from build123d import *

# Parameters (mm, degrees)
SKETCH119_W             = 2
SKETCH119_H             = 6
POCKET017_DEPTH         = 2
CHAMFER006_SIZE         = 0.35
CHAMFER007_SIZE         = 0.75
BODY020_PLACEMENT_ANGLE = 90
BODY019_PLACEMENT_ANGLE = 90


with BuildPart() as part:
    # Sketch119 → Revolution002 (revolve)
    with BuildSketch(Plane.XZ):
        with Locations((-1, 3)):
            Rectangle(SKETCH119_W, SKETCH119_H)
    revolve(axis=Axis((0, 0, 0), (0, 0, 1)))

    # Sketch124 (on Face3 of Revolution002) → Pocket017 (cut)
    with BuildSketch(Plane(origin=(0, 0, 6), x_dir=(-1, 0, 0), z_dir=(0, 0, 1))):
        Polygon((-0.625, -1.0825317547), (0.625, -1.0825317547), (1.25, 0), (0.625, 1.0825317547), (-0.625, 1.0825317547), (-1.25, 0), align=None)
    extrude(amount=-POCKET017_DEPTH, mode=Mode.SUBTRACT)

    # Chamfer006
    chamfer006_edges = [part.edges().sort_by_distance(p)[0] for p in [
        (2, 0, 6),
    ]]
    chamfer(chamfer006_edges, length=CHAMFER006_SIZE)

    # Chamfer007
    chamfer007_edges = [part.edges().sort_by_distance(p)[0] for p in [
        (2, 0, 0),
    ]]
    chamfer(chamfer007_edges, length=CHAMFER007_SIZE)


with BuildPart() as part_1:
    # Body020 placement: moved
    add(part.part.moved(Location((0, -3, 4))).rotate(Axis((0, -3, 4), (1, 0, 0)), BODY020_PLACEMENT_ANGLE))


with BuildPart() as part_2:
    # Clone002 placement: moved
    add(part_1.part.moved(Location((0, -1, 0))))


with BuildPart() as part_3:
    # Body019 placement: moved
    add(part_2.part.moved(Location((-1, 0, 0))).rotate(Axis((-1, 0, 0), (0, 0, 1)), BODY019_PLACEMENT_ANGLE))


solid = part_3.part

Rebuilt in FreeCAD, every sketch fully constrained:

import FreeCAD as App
import Part
import Sketcher

V = App.Vector
Q = App.Units.Quantity


def edges_at(feature, points):
    """Names of the edges that pass closest to the given points."""
    edges = feature.Shape.Edges
    near = lambda p: min(range(len(edges)), key=lambda i: edges[i].distToShape(Part.Vertex(*p))[0])
    return sorted({f"Edge{near(p) + 1}" for p in points})


def add_polygon(sketch, points):
    """Adds a closed chain of lines whose ends are joined by coincident constraints."""
    first, n = sketch.GeometryCount, len(points)
    for a, b in zip(points, points[1:] + points[:1]):
        sketch.addGeometry(Part.LineSegment(App.Vector(*a, 0), App.Vector(*b, 0)), False)
    for i in range(n):
        sketch.addConstraint(Sketcher.Constraint("Coincident", first + i, 2, first + (i + 1) % n, 1))

doc = App.newDocument("Part")
body = doc.addObject("PartDesign::Body", "Body")

# Sketch on XZ plane
sketch1 = body.newObject("Sketcher::SketchObject", "Sketch")
sketch1.AttachmentSupport = (doc.getObject("XZ_Plane"), [""])
sketch1.MapMode = "FlatFace"
add_polygon(sketch1, [(-2, 6), (-2, 0), (0, 0), (0, 6)])  # lines 0-3
sketch1.addConstraint(Sketcher.Constraint("Vertical", 0))
sketch1.addConstraint(Sketcher.Constraint("Horizontal", 1))
sketch1.addConstraint(Sketcher.Constraint("Vertical", 2))
sketch1.addConstraint(Sketcher.Constraint("Horizontal", 3))
sketch1.addConstraint(Sketcher.Constraint("Coincident", 1, 2, -1, 1))
sketch1.addConstraint(Sketcher.Constraint("DistanceX", 1, 1, 1, 2, 2.0))
sketch1.addConstraint(Sketcher.Constraint("DistanceY", 0, 2, 0, 1, 6.0))
revolution = body.newObject("PartDesign::Revolution", "Revolution")
revolution.Profile = sketch1
revolution.ReferenceAxis = (sketch1, ["V_Axis"])
revolution.Angle = 360

# Sketch on XY plane
sketch2 = body.newObject("Sketcher::SketchObject", "Sketch001")
sketch2.AttachmentSupport = (doc.getObject("XY_Plane"), [""])
sketch2.MapMode = "FlatFace"
sketch2.AttachmentOffset = App.Placement(V(0, 0, 6), App.Rotation())
add_polygon(sketch2, [(0.6, 1.1), (-0.6, 1.1), (-1.2, 0), (-0.6, -1.1), (0.6, -1.1), (1.2, 0)])  # lines 0-5
sketch2.addConstraint(Sketcher.Constraint("Horizontal", 0))
sketch2.addConstraint(Sketcher.Constraint("Horizontal", 3))
sketch2.addConstraint(Sketcher.Constraint("Symmetric", 0, 2, 3, 2, -1, 1))
sketch2.addConstraint(Sketcher.Constraint("Symmetric", 1, 2, 4, 2, -1, 1))
sketch2.addConstraint(Sketcher.Constraint("PointOnObject", 1, 2, -1))
sketch2.addConstraint(Sketcher.Constraint("Parallel", 2, 5))
sketch2.addConstraint(Sketcher.Constraint("Vertical", 0, 2, 2, 2))
sketch2.addConstraint(Sketcher.Constraint("Angle", 1, Q("-120 deg")))
sketch2.addConstraint(Sketcher.Constraint("DistanceX", 0, 2, 0, 1, 1.25))
sketch2.addConstraint(Sketcher.Constraint("DistanceX", 1, 2, 4, 2, 2.5))
pocket1 = body.newObject("PartDesign::Pocket", "Pocket")
pocket1.Profile = sketch2
pocket1.Length = 2
doc.recompute()

chamfer = body.newObject("PartDesign::Chamfer", "Chamfer")
chamfer.Base = (pocket1, edges_at(pocket1, [(2, 0, 6)]))
chamfer.Size = 0.35
doc.recompute()

chamfer2 = body.newObject("PartDesign::Chamfer", "Chamfer001")
chamfer2.Base = (chamfer, edges_at(chamfer, [(2, 0, 0)]))
chamfer2.Size = 0.75
body2 = doc.addObject("PartDesign::Body", "Body001")
doc.recompute()

body.Placement = App.Placement(V(0, -3, 4), App.Rotation(V(1, 0, 0), 90))
boolean = body2.newObject("PartDesign::Boolean", "Boolean")
boolean.Type = "Fuse"
boolean.addObjects([body])
body3 = doc.addObject("PartDesign::Body", "Body002")
doc.recompute()

body2.Placement = App.Placement(V(0, -1, 0), App.Rotation(V(0, 0, 1), 0))
boolean2 = body3.newObject("PartDesign::Boolean", "Boolean001")
boolean2.Type = "Fuse"
boolean2.addObjects([body2])
body4 = doc.addObject("PartDesign::Body", "Body003")
doc.recompute()

body3.Placement = App.Placement(V(-1, 0, 0), App.Rotation(V(0, 0, 1), 90))
boolean3 = body4.newObject("PartDesign::Boolean", "Boolean002")
boolean3.Type = "Fuse"
boolean3.addObjects([body3])

doc.recompute()
